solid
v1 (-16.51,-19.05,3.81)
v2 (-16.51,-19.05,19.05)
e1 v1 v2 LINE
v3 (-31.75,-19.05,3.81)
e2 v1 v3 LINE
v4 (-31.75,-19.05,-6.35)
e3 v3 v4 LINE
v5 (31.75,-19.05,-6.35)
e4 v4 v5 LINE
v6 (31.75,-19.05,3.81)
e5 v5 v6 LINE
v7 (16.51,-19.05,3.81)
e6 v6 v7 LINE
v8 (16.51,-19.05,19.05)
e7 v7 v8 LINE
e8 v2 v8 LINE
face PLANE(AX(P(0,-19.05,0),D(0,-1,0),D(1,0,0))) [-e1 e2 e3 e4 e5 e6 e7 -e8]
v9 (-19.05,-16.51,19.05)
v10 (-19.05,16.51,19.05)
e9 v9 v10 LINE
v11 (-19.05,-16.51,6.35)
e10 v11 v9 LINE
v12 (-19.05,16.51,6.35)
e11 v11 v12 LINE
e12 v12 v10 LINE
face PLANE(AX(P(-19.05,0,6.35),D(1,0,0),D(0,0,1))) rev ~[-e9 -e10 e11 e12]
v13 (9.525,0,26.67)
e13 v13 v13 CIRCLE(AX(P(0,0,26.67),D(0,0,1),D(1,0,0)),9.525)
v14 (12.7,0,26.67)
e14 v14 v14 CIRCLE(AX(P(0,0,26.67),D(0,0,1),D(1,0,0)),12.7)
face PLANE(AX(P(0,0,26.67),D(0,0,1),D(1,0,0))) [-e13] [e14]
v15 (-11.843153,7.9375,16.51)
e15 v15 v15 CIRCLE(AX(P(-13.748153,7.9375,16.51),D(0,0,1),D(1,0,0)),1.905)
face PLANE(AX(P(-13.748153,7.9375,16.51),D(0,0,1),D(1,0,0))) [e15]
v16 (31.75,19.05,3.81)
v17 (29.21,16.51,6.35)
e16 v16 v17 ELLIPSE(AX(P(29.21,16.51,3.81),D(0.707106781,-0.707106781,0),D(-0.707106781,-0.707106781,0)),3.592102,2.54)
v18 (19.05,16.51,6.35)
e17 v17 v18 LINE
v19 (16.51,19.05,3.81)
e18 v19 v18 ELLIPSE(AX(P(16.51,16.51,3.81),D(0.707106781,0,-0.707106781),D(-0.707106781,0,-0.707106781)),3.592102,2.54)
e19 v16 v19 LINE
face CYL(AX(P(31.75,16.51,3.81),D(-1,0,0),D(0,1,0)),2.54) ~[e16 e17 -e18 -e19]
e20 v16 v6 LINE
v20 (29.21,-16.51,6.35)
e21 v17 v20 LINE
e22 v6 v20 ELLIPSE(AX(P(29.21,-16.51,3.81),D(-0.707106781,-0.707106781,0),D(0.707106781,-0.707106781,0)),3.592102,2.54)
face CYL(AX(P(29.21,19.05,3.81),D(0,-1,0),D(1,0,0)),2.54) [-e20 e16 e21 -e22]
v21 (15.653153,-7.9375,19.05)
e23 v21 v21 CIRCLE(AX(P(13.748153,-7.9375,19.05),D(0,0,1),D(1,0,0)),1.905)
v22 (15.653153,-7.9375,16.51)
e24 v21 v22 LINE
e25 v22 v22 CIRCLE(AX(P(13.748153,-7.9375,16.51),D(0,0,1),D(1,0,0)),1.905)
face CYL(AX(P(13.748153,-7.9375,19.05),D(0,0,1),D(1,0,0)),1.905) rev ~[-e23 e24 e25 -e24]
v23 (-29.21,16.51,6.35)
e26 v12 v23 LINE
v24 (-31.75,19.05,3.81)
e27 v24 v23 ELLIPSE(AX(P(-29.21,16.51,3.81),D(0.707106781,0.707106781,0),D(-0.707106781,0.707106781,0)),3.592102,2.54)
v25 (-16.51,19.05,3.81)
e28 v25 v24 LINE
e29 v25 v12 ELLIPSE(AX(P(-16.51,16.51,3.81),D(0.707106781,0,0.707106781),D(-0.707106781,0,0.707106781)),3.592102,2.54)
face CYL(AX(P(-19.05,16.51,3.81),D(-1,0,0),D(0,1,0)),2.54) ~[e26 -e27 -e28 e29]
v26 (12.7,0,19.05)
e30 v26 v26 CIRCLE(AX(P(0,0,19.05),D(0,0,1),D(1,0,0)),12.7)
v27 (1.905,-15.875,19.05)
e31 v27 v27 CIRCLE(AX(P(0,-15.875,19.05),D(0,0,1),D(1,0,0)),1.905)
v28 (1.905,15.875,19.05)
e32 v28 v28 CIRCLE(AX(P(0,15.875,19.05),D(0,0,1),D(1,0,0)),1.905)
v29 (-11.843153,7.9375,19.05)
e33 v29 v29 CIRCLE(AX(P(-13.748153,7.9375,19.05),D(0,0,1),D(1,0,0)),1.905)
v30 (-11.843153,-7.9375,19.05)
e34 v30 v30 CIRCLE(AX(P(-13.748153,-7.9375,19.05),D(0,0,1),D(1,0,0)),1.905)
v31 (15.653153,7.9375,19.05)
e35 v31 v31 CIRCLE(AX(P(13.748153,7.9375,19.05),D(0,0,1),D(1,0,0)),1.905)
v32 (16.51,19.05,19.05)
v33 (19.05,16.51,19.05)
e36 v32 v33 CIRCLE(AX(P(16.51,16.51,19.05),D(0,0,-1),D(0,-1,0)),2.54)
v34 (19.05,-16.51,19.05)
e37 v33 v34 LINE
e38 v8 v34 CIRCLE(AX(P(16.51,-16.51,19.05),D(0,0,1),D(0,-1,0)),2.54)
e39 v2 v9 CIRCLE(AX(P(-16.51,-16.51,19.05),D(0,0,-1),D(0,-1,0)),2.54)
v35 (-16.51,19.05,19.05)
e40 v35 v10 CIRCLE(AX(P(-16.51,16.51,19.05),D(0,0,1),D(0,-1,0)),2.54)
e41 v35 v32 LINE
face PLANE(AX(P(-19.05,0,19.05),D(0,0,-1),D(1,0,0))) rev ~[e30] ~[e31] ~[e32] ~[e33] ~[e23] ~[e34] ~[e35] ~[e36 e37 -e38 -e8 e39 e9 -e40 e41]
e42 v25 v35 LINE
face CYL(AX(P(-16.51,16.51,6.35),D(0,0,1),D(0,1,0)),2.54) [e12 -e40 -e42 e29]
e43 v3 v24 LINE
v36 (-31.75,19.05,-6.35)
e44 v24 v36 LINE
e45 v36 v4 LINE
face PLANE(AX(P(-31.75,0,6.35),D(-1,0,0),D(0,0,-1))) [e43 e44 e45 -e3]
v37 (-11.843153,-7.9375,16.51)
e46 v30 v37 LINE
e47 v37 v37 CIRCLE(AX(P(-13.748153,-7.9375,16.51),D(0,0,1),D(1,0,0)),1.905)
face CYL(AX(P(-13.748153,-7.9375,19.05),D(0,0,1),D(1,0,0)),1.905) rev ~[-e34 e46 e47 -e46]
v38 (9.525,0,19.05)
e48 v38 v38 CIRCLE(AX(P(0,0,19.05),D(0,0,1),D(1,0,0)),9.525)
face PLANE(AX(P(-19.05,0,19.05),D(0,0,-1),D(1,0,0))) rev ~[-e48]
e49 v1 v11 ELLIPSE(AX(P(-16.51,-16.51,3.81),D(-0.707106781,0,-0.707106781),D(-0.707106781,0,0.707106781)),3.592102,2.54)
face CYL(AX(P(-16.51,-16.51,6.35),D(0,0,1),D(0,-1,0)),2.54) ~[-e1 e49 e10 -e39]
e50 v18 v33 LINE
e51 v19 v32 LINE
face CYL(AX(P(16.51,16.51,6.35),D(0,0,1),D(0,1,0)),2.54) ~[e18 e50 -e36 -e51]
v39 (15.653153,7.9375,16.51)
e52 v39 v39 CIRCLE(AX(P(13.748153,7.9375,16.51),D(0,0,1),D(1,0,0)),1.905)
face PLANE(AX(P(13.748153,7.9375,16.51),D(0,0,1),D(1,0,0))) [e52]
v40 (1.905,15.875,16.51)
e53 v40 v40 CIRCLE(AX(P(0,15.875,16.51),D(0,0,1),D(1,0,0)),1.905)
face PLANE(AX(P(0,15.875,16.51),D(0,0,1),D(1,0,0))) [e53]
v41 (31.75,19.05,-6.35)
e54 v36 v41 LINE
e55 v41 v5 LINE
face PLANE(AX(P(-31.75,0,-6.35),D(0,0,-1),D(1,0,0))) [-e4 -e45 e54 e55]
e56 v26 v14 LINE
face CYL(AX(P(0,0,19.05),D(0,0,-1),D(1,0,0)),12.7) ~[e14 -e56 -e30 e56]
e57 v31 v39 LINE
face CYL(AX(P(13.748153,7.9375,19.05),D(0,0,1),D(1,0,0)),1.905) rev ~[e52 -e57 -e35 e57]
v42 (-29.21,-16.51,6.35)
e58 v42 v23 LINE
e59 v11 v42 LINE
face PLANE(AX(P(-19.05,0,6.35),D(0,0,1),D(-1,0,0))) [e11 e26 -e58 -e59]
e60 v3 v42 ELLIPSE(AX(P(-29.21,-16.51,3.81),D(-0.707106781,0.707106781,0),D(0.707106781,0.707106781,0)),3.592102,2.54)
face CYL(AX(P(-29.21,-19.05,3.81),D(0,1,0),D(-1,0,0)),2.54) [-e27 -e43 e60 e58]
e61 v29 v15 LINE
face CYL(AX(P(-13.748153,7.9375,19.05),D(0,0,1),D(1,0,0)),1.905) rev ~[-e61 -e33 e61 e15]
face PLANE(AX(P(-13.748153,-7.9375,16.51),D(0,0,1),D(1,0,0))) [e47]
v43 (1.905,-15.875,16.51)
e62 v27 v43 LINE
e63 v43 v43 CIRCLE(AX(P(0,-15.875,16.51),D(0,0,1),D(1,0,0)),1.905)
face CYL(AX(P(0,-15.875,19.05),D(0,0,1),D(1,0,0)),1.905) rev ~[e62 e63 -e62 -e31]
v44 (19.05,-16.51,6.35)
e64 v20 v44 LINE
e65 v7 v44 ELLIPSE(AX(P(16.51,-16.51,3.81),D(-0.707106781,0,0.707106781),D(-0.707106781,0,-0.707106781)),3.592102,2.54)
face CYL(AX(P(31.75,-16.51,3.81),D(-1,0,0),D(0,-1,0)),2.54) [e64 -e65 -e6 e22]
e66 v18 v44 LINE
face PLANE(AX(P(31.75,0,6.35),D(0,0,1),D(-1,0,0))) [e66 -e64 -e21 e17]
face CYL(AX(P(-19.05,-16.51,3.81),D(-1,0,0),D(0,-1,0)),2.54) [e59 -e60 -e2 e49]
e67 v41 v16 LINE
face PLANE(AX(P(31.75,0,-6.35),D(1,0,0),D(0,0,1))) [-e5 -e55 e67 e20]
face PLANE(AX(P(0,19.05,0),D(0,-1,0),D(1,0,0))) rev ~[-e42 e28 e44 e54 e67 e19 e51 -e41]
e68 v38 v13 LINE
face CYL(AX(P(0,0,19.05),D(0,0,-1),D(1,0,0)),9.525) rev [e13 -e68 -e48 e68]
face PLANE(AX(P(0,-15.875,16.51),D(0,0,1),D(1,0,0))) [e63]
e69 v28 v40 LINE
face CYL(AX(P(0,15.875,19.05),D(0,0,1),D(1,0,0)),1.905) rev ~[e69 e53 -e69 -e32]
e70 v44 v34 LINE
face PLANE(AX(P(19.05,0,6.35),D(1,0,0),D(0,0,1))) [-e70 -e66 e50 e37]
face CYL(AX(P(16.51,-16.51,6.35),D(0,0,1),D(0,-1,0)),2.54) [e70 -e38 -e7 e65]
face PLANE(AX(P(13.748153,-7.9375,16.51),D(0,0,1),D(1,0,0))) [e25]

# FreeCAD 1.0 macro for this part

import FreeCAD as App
import Part
import Sketcher

V = App.Vector
Q = App.Units.Quantity


def edges_at(feature, points):
    """Names of the edges that pass closest to the given points."""
    edges = feature.Shape.Edges
    near = lambda p: min(range(len(edges)), key=lambda i: edges[i].distToShape(Part.Vertex(*p))[0])
    return sorted({f"Edge{near(p) + 1}" for p in points})

doc = App.newDocument("Part")
body = doc.addObject("PartDesign::Body", "Body")

sketch1 = body.newObject("Sketcher::SketchObject", "Sketch")
sketch1.AttachmentSupport = (doc.getObject("XZ_Plane"), [""])
sketch1.MapMode = "FlatFace"
sketch1.addGeometry([
    Part.LineSegment(V(-32, 6, 0), V(-32, -6, 0)),
    Part.LineSegment(V(-32, -6, 0), V(32, -6, 0)),
    Part.LineSegment(V(32, -6, 0), V(32, 6, 0)),
    Part.LineSegment(V(32, 6, 0), V(19, 6, 0)),
    Part.LineSegment(V(19, 6, 0), V(19, 19, 0)),
    Part.LineSegment(V(19, 19, 0), V(-19, 19, 0)),
    Part.LineSegment(V(-19, 19, 0), V(-19, 6, 0)),
    Part.LineSegment(V(-19, 6, 0), V(-32, 6, 0)),
], False)
sketch1.addConstraint([
    Sketcher.Constraint("Coincident", 0, 2, 1, 1),
    Sketcher.Constraint("Coincident", 1, 2, 2, 1),
    Sketcher.Constraint("Coincident", 2, 2, 3, 1),
    Sketcher.Constraint("Coincident", 3, 2, 4, 1),
    Sketcher.Constraint("Coincident", 4, 2, 5, 1),
    Sketcher.Constraint("Coincident", 5, 2, 6, 1),
    Sketcher.Constraint("Coincident", 6, 2, 7, 1),
    Sketcher.Constraint("Coincident", 7, 2, 0, 1),
    Sketcher.Constraint("Vertical", 0),
    Sketcher.Constraint("Horizontal", 1),
    Sketcher.Constraint("Vertical", 2),
    Sketcher.Constraint("Horizontal", 3),
    Sketcher.Constraint("Vertical", 4),
    Sketcher.Constraint("Horizontal", 5),
    Sketcher.Constraint("Vertical", 6),
    Sketcher.Constraint("Horizontal", 7),
    Sketcher.Constraint("Symmetric", 0, 2, 2, 2, -1, 1),
    Sketcher.Constraint("Symmetric", 3, 2, 6, 2, -2),
    Sketcher.Constraint("Equal", 7, 0),
    Sketcher.Constraint("Equal", 2, 4),
    Sketcher.Constraint("DistanceX", 1, 1, 1, 2, Q("2.5 in")),
    Sketcher.Constraint("DistanceX", 3, 2, 3, 1, Q("0.5 in")),
])
pad1 = body.newObject("PartDesign::Pad", "Pad")
pad1.Profile = sketch1
pad1.Length = Q("1.5 in")
pad1.Midplane = True

sketch2 = body.newObject("Sketcher::SketchObject", "Sketch001")
sketch2.AttachmentSupport = (doc.getObject("XY_Plane"), [""])
sketch2.MapMode = "FlatFace"
sketch2.AttachmentOffset = App.Placement(V(0, 0, 0.75 * 25.4), App.Rotation())
sketch2.addGeometry([
    Part.Circle(V(0, 0, 0), V(0, 0, 1), 13),
    Part.Circle(V(0, 0, 0), V(0, 0, 1), 10),
], False)
sketch2.addConstraint([
    Sketcher.Constraint("Coincident", 0, 3, -1, 1),
    Sketcher.Constraint("Coincident", 1, 3, -1, 1),
    Sketcher.Constraint("Diameter", 0, Q("1 in")),
    Sketcher.Constraint("Diameter", 1, Q("0.75 in")),
])
pad2 = body.newObject("PartDesign::Pad", "Pad001")
pad2.Profile = sketch2
pad2.Length = Q("0.3 in")

sketch3 = body.newObject("Sketcher::SketchObject", "Sketch002")
sketch3.AttachmentSupport = (doc.getObject("XY_Plane"), [""])
sketch3.MapMode = "FlatFace"
sketch3.AttachmentOffset = App.Placement(V(0, 0, 0.75 * 25.4), App.Rotation())
sketch3.addGeometry([
    Part.Circle(V(13.7, -7.9, 0), V(0, 0, 1), 1.9),
    Part.Circle(V(13.7, 7.9, 0), V(0, 0, 1), 1.9),
    Part.Circle(V(0, 15.9, 0), V(0, 0, 1), 1.9),
    Part.Circle(V(-13.7, 7.9, 0), V(0, 0, 1), 1.9),
    Part.Circle(V(-13.7, -7.9, 0), V(0, 0, 1), 1.9),
    Part.Circle(V(0, -15.9, 0), V(0, 0, 1), 1.9),
], False)
sketch3.addConstraint([
    Sketcher.Constraint("Equal", 0, 1),
    Sketcher.Constraint("Equal", 1, 2),
    Sketcher.Constraint("Equal", 2, 3),
    Sketcher.Constraint("Equal", 3, 4),
    Sketcher.Constraint("Equal", 4, 5),
    Sketcher.Constraint("Symmetric", 0, 3, 3, 3, -1, 1),
    Sketcher.Constraint("Symmetric", 1, 3, 4, 3, -1, 1),
    Sketcher.Constraint("Symmetric", 2, 3, 5, 3, -1, 1),
    Sketcher.Constraint("Symmetric", 1, 3, 3, 3, -2),
    Sketcher.Constraint("PointOnObject", 2, 3, -2),
    Sketcher.Constraint("Diameter", 0, Q("0.15 in")),
    Sketcher.Constraint("DistanceY", 5, 3, 2, 3, Q("1.25 in")),
    Sketcher.Constraint("DistanceY", 0, 3, -1, 1, Q("0.3125 in")),
    Sketcher.Constraint("DistanceX", -1, 1, 0, 3, Q("13.748153 mm")),
])
pocket1 = body.newObject("PartDesign::Pocket", "Pocket")
pocket1.Profile = sketch3
pocket1.Length = Q("0.1 in")
doc.recompute()

fillet = body.newObject("PartDesign::Fillet", "Fillet")
fillet.Base = (pocket1, edges_at(pocket1, [
    (25.4, 19.05, 6.35),
    (31.75, 0, 6.35),
    (25.4, -19.05, 6.35),
    (-19.05, 19.05, 12.7),
    (-25.4, 19.05, 6.35),
    (-31.75, 0, 6.35),
    (-25.4, -19.05, 6.35),
    (-19.05, -19.05, 12.7),
    (19.05, -19.05, 12.7),
    (19.05, 19.05, 12.7),
]))
fillet.Radius = Q("0.1 in")

doc.recompute()
